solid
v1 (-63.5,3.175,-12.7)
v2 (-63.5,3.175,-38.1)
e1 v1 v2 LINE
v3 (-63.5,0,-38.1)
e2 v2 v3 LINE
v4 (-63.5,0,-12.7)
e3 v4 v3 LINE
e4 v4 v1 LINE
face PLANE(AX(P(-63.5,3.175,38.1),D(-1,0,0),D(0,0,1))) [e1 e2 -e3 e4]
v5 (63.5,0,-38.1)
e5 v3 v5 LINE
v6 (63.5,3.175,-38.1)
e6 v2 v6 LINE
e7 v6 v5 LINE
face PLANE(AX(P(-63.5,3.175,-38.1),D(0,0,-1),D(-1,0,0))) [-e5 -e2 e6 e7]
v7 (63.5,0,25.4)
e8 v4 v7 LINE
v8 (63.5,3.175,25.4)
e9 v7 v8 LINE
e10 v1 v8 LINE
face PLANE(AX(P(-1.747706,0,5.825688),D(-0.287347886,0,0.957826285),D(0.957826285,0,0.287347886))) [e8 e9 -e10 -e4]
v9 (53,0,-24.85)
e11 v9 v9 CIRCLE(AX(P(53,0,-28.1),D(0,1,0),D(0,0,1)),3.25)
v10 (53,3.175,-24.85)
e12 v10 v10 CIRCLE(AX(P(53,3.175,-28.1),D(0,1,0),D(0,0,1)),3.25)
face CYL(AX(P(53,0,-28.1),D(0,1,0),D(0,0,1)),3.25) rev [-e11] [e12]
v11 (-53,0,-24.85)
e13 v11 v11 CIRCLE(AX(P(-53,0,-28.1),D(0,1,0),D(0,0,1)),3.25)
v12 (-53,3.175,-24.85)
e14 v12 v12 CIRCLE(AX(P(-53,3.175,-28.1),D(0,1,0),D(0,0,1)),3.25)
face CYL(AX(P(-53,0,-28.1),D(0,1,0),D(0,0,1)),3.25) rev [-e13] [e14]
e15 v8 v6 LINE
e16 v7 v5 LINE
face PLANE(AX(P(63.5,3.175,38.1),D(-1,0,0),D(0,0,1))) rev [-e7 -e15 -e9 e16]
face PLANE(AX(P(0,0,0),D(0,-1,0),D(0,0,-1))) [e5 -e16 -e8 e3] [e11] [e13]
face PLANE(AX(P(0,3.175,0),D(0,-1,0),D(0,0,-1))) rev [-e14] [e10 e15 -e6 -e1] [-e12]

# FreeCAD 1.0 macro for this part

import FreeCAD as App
import Part
import Sketcher

V = App.Vector
Q = App.Units.Quantity

doc = App.newDocument("Part")
body = doc.addObject("PartDesign::Body", "Body")

# Sketch on XZ plane
sketch1 = body.newObject("Sketcher::SketchObject", "Sketch")
sketch1.AttachmentSupport = (doc.getObject("XZ_Plane"), [""])
sketch1.MapMode = "FlatFace"
sketch1.addGeometry([
    Part.LineSegment(V(-64, -38, 0), V(-64, 38, 0)),
    Part.LineSegment(V(-64, 38, 0), V(64, 38, 0)),
    Part.LineSegment(V(64, 38, 0), V(64, -38, 0)),
    Part.LineSegment(V(64, -38, 0), V(-64, -38, 0)),
], False)
sketch1.addConstraint([
    Sketcher.Constraint("Coincident", 0, 2, 1, 1),
    Sketcher.Constraint("Coincident", 1, 2, 2, 1),
    Sketcher.Constraint("Coincident", 2, 2, 3, 1),
    Sketcher.Constraint("Coincident", 3, 2, 0, 1),
    Sketcher.Constraint("Vertical", 0),
    Sketcher.Constraint("Horizontal", 1),
    Sketcher.Constraint("Vertical", 2),
    Sketcher.Constraint("Horizontal", 3),
    Sketcher.Constraint("Symmetric", 0, 2, 2, 2, -1, 1),
    Sketcher.Constraint("DistanceX", 1, 1, 1, 2, Q("5 in")),
    Sketcher.Constraint("DistanceY", 0, 1, 0, 2, Q("3 in")),
])
pad1 = body.newObject("PartDesign::Pad", "Pad")
pad1.Profile = sketch1
pad1.Length = Q("0.125 in")
pad1.Reversed = True

# Sketch on XZ plane
sketch2 = body.newObject("Sketcher::SketchObject", "Sketch001")
sketch2.AttachmentSupport = (doc.getObject("XZ_Plane"), [""])
sketch2.MapMode = "FlatFace"
sketch2.AttachmentOffset = App.Placement(V(0, 0, -0.125 * 25.4), App.Rotation())
sketch2.addGeometry([
    Part.LineSegment(V(63.5, 25.4, 0), V(-63.5, -12.7, 0)),  # 0
    Part.LineSegment(V(-63.5, -12.7, 0), V(-63.5, 38.1, 0)),  # 1
    Part.LineSegment(V(-63.5, 38.1, 0), V(63.5, 38.1, 0)),  # 2
    Part.LineSegment(V(63.5, 38.1, 0), V(63.5, 25.4, 0)),  # 3
    Part.Circle(V(-53, -28.1, 0), V(0, 0, 1), 3.2),  # 4
    Part.Circle(V(53, -28.1, 0), V(0, 0, 1), 3.2),  # 5
], False)
sketch2.addConstraint([
    Sketcher.Constraint("Coincident", 0, 2, 1, 1),
    Sketcher.Constraint("Coincident", 1, 2, 2, 1),
    Sketcher.Constraint("Coincident", 2, 2, 3, 1),
    Sketcher.Constraint("Coincident", 3, 2, 0, 1),
    Sketcher.Constraint("Vertical", 1),
    Sketcher.Constraint("Horizontal", 2),
    Sketcher.Constraint("Vertical", 3),
    Sketcher.Constraint("Equal", 4, 5),
    Sketcher.Constraint("Symmetric", 4, 3, 5, 3, -2),
    Sketcher.Constraint("DistanceX", 2, 1, 2, 2, Q("5 in")),
    Sketcher.Constraint("DistanceY", 1, 1, 1, 2, Q("2 in")),
    Sketcher.Constraint("DistanceY", 3, 2, 3, 1, Q("0.5 in")),
    Sketcher.Constraint("DistanceY", -1, 1, 3, 2, Q("1 in")),
    Sketcher.Constraint("DistanceX", 0, 2, -1, 1, Q("2.5 in")),
    Sketcher.Constraint("Diameter", 4, Q("6.5 mm")),
    Sketcher.Constraint("DistanceX", 4, 3, -1, 1, Q("53 mm")),
    Sketcher.Constraint("DistanceY", 4, 3, -1, 1, Q("28.1 mm")),
])
pocket1 = body.newObject("PartDesign::Pocket", "Pocket")
pocket1.Profile = sketch2
pocket1.Type = "ThroughAll"
pocket1.Reversed = True

doc.recompute()
